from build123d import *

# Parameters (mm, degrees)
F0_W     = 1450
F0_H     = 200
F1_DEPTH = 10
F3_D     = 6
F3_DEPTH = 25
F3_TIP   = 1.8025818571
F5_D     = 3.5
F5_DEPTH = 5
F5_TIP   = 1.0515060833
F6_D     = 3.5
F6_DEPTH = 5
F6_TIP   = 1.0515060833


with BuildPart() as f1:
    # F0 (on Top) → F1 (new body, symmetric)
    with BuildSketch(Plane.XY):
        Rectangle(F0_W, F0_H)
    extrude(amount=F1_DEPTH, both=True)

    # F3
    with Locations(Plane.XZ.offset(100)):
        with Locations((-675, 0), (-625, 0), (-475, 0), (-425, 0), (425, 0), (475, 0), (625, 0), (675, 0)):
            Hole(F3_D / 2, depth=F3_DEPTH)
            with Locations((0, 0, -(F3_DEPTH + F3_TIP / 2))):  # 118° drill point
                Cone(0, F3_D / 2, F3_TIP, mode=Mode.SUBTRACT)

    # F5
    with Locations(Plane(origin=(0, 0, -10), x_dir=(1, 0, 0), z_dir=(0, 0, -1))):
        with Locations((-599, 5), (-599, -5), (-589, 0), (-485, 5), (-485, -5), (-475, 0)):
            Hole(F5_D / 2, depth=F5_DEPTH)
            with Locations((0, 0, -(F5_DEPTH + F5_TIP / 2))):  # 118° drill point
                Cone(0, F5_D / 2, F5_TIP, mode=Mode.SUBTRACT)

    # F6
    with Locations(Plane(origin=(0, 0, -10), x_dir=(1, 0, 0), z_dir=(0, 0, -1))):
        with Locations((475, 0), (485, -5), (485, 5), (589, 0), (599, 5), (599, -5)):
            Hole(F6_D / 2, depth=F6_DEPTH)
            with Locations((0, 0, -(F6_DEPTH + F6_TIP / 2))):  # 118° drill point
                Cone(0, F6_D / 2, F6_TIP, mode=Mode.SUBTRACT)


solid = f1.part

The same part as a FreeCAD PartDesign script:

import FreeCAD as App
import Part
import Sketcher
from FreeCAD import Vector


def add_polygon(sketch, points):
    """Adds a closed chain of lines whose ends are joined by coincident constraints."""
    first, n = sketch.GeometryCount, len(points)
    for a, b in zip(points, points[1:] + points[:1]):
        sketch.addGeometry(Part.LineSegment(App.Vector(*a, 0), App.Vector(*b, 0)), False)
    for i in range(n):
        sketch.addConstraint(Sketcher.Constraint("Coincident", first + i, 2, first + (i + 1) % n, 1))

doc = App.newDocument("Part")
body = doc.addObject("PartDesign::Body", "Body")

# Sketch on XY plane
sketch1 = body.newObject("Sketcher::SketchObject", "Sketch")
sketch1.AttachmentSupport = (doc.getObject("XY_Plane"), [""])
sketch1.MapMode = "FlatFace"
add_polygon(sketch1, [(-725, 100), (-725, -100), (725, -100), (725, 100)])  # lines 0-3
sketch1.addConstraint(Sketcher.Constraint("Vertical", 0))
sketch1.addConstraint(Sketcher.Constraint("Horizontal", 1))
sketch1.addConstraint(Sketcher.Constraint("Vertical", 2))
sketch1.addConstraint(Sketcher.Constraint("Horizontal", 3))
sketch1.addConstraint(Sketcher.Constraint("Symmetric", 0, 2, 2, 2, -1, 1))
sketch1.addConstraint(Sketcher.Constraint("DistanceX", 1, 1, 1, 2, 1450.0))
sketch1.addConstraint(Sketcher.Constraint("DistanceY", 0, 2, 0, 1, 200.0))
pad1 = body.newObject("PartDesign::Pad", "Pad")
pad1.Profile = sketch1
pad1.Length = 20
pad1.Midplane = True

# Sketch on XZ plane
sketch2 = body.newObject("Sketcher::SketchObject", "Sketch001")
sketch2.AttachmentSupport = (doc.getObject("XZ_Plane"), [""])
sketch2.MapMode = "FlatFace"
sketch2.AttachmentOffset = App.Placement(Vector(0, 0, 100), App.Rotation())
sketch2.addGeometry(Part.Circle(Vector(-675, 0, 0), Vector(0, 0, 1), 3), False)
sketch2.addGeometry(Part.Circle(Vector(-625, 0, 0), Vector(0, 0, 1), 3), False)
sketch2.addGeometry(Part.Circle(Vector(-475, 0, 0), Vector(0, 0, 1), 3), False)
sketch2.addGeometry(Part.Circle(Vector(-425, 0, 0), Vector(0, 0, 1), 3), False)
sketch2.addGeometry(Part.Circle(Vector(425, 0, 0), Vector(0, 0, 1), 3), False)
sketch2.addGeometry(Part.Circle(Vector(475, 0, 0), Vector(0, 0, 1), 3), False)
sketch2.addGeometry(Part.Circle(Vector(625, 0, 0), Vector(0, 0, 1), 3), False)
sketch2.addGeometry(Part.Circle(Vector(675, 0, 0), Vector(0, 0, 1), 3), False)
sketch2.addConstraint(Sketcher.Constraint("Equal", 0, 1))
sketch2.addConstraint(Sketcher.Constraint("Equal", 1, 2))
sketch2.addConstraint(Sketcher.Constraint("Equal", 2, 3))
sketch2.addConstraint(Sketcher.Constraint("Equal", 3, 4))
sketch2.addConstraint(Sketcher.Constraint("Equal", 4, 5))
sketch2.addConstraint(Sketcher.Constraint("Equal", 5, 6))
sketch2.addConstraint(Sketcher.Constraint("Equal", 6, 7))
sketch2.addConstraint(Sketcher.Constraint("Symmetric", 3, 3, 4, 3, -1, 1))
sketch2.addConstraint(Sketcher.Constraint("Symmetric", 2, 3, 5, 3, -1, 1))
sketch2.addConstraint(Sketcher.Constraint("Symmetric", 1, 3, 6, 3, -1, 1))
sketch2.addConstraint(Sketcher.Constraint("Symmetric", 0, 3, 7, 3, -1, 1))
sketch2.addConstraint(Sketcher.Constraint("PointOnObject", 0, 3, -1))
sketch2.addConstraint(Sketcher.Constraint("PointOnObject", 1, 3, -1))
sketch2.addConstraint(Sketcher.Constraint("PointOnObject", 2, 3, -1))
sketch2.addConstraint(Sketcher.Constraint("PointOnObject", 3, 3, -1))
sketch2.addConstraint(Sketcher.Constraint("Diameter", 0, 6.0))
sketch2.addConstraint(Sketcher.Constraint("DistanceX", 0, 3, -1, 1, 675.0))
sketch2.addConstraint(Sketcher.Constraint("DistanceX", 1, 3, -1, 1, 625.0))
sketch2.addConstraint(Sketcher.Constraint("DistanceX", 2, 3, -1, 1, 475.0))
sketch2.addConstraint(Sketcher.Constraint("DistanceX", 3, 3, -1, 1, 425.0))
doc.recompute()
hole = body.newObject("PartDesign::Hole", "Hole")
hole.Profile = sketch2
hole.ThreadType = "None"
hole.Diameter = 6
hole.DepthType = "Dimension"
hole.Depth = 25
hole.DrillPoint = "Angled"
hole.DrillPointAngle = 118

# Sketch on XY plane
sketch3 = body.newObject("Sketcher::SketchObject", "Sketch002")
sketch3.AttachmentSupport = (doc.getObject("XY_Plane"), [""])
sketch3.MapMode = "FlatFace"
sketch3.AttachmentOffset = App.Placement(Vector(0, 0, -10), App.Rotation())
sketch3.addGeometry(Part.Circle(Vector(-599, -5, 0), Vector(0, 0, 1), 1.8), False)
sketch3.addGeometry(Part.Circle(Vector(-599, 5, 0), Vector(0, 0, 1), 1.8), False)
sketch3.addGeometry(Part.Circle(Vector(-589, 0, 0), Vector(0, 0, 1), 1.8), False)
sketch3.addGeometry(Part.Circle(Vector(-485, -5, 0), Vector(0, 0, 1), 1.8), False)
sketch3.addGeometry(Part.Circle(Vector(-485, 5, 0), Vector(0, 0, 1), 1.8), False)
sketch3.addGeometry(Part.Circle(Vector(-475, 0, 0), Vector(0, 0, 1), 1.8), False)
sketch3.addConstraint(Sketcher.Constraint("Equal", 0, 1))
sketch3.addConstraint(Sketcher.Constraint("Equal", 1, 2))
sketch3.addConstraint(Sketcher.Constraint("Equal", 2, 3))
sketch3.addConstraint(Sketcher.Constraint("Equal", 3, 4))
sketch3.addConstraint(Sketcher.Constraint("Equal", 4, 5))
sketch3.addConstraint(Sketcher.Constraint("Symmetric", 0, 3, 1, 3, -1))
sketch3.addConstraint(Sketcher.Constraint("Symmetric", 3, 3, 4, 3, -1))
sketch3.addConstraint(Sketcher.Constraint("PointOnObject", 2, 3, -1))
sketch3.addConstraint(Sketcher.Constraint("PointOnObject", 5, 3, -1))
sketch3.addConstraint(Sketcher.Constraint("Horizontal", 0, 3, 3, 3))
sketch3.addConstraint(Sketcher.Constraint("Diameter", 0, 3.5))
sketch3.addConstraint(Sketcher.Constraint("DistanceX", 0, 3, -1, 1, 599.0))
sketch3.addConstraint(Sketcher.Constraint("DistanceY", 0, 3, -1, 1, 5.0))
sketch3.addConstraint(Sketcher.Constraint("DistanceX", 2, 3, -1, 1, 589.0))
sketch3.addConstraint(Sketcher.Constraint("DistanceX", 3, 3, -1, 1, 485.0))
sketch3.addConstraint(Sketcher.Constraint("DistanceX", 5, 3, -1, 1, 475.0))
doc.recompute()
hole2 = body.newObject("PartDesign::Hole", "Hole001")
hole2.Profile = sketch3
hole2.ThreadType = "None"
hole2.Diameter = 3.5
hole2.DepthType = "Dimension"
hole2.Depth = 5
hole2.DrillPoint = "Angled"
hole2.DrillPointAngle = 118
hole2.Reversed = True

# Sketch on XY plane
sketch4 = body.newObject("Sketcher::SketchObject", "Sketch003")
sketch4.AttachmentSupport = (doc.getObject("XY_Plane"), [""])
sketch4.MapMode = "FlatFace"
sketch4.AttachmentOffset = App.Placement(Vector(0, 0, -10), App.Rotation())
sketch4.addGeometry(Part.Circle(Vector(475, 0, 0), Vector(0, 0, 1), 1.8), False)
sketch4.addGeometry(Part.Circle(Vector(485, 5, 0), Vector(0, 0, 1), 1.8), False)
sketch4.addGeometry(Part.Circle(Vector(485, -5, 0), Vector(0, 0, 1), 1.8), False)
sketch4.addGeometry(Part.Circle(Vector(589, 0, 0), Vector(0, 0, 1), 1.8), False)
sketch4.addGeometry(Part.Circle(Vector(599, -5, 0), Vector(0, 0, 1), 1.8), False)
sketch4.addGeometry(Part.Circle(Vector(599, 5, 0), Vector(0, 0, 1), 1.8), False)
sketch4.addConstraint(Sketcher.Constraint("Equal", 0, 1))
sketch4.addConstraint(Sketcher.Constraint("Equal", 1, 2))
sketch4.addConstraint(Sketcher.Constraint("Equal", 2, 3))
sketch4.addConstraint(Sketcher.Constraint("Equal", 3, 4))
sketch4.addConstraint(Sketcher.Constraint("Equal", 4, 5))
sketch4.addConstraint(Sketcher.Constraint("Symmetric", 1, 3, 2, 3, -1))
sketch4.addConstraint(Sketcher.Constraint("Symmetric", 4, 3, 5, 3, -1))
sketch4.addConstraint(Sketcher.Constraint("PointOnObject", 0, 3, -1))
sketch4.addConstraint(Sketcher.Constraint("PointOnObject", 3, 3, -1))
sketch4.addConstraint(Sketcher.Constraint("Horizontal", 2, 3, 4, 3))
sketch4.addConstraint(Sketcher.Constraint("Diameter", 0, 3.5))
sketch4.addConstraint(Sketcher.Constraint("DistanceX", -1, 1, 0, 3, 475.0))
sketch4.addConstraint(Sketcher.Constraint("DistanceX", -1, 1, 1, 3, 485.0))
sketch4.addConstraint(Sketcher.Constraint("DistanceY", -1, 1, 1, 3, 5.0))
sketch4.addConstraint(Sketcher.Constraint("DistanceX", -1, 1, 3, 3, 589.0))
sketch4.addConstraint(Sketcher.Constraint("DistanceX", -1, 1, 4, 3, 599.0))
doc.recompute()
hole3 = body.newObject("PartDesign::Hole", "Hole002")
hole3.Profile = sketch4
hole3.ThreadType = "None"
hole3.Diameter = 3.5
hole3.DepthType = "Dimension"
hole3.Depth = 5
hole3.DrillPoint = "Angled"
hole3.DrillPointAngle = 118
hole3.Reversed = True

doc.recompute()
